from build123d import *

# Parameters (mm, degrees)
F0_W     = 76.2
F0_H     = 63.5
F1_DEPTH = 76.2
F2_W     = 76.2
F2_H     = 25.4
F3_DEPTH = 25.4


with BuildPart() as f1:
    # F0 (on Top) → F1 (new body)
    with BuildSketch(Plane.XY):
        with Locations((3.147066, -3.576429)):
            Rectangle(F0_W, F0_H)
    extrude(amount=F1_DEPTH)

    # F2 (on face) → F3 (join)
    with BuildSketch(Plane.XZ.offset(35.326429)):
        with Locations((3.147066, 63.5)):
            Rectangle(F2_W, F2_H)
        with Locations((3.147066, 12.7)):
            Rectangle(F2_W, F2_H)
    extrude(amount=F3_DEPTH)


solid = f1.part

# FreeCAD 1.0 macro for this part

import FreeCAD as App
import Part
import Sketcher
from FreeCAD import Vector
Q = App.Units.Quantity

doc = App.newDocument("Part")
body = doc.addObject("PartDesign::Body", "Body")

sketch1 = body.newObject("Sketcher::SketchObject", "Sketch")
sketch1.AttachmentSupport = (doc.getObject("XY_Plane"), [""])
sketch1.MapMode = "FlatFace"
sketch1.addGeometry(Part.LineSegment(Vector(-35, 28, 0), Vector(-35, -35, 0)), False)
sketch1.addGeometry(Part.LineSegment(Vector(-35, -35, 0), Vector(41, -35, 0)), False)
sketch1.addGeometry(Part.LineSegment(Vector(41, -35, 0), Vector(41, 28, 0)), False)
sketch1.addGeometry(Part.LineSegment(Vector(41, 28, 0), Vector(-35, 28, 0)), False)
sketch1.addConstraint(Sketcher.Constraint("Coincident", 0, 2, 1, 1))
sketch1.addConstraint(Sketcher.Constraint("Coincident", 1, 2, 2, 1))
sketch1.addConstraint(Sketcher.Constraint("Coincident", 2, 2, 3, 1))
sketch1.addConstraint(Sketcher.Constraint("Coincident", 3, 2, 0, 1))
sketch1.addConstraint(Sketcher.Constraint("Vertical", 0))
sketch1.addConstraint(Sketcher.Constraint("Horizontal", 1))
sketch1.addConstraint(Sketcher.Constraint("Vertical", 2))
sketch1.addConstraint(Sketcher.Constraint("Horizontal", 3))
sketch1.addConstraint(Sketcher.Constraint("DistanceX", 1, 1, 1, 2, Q("3 in")))
sketch1.addConstraint(Sketcher.Constraint("DistanceY", 0, 2, 0, 1, Q("2.5 in")))
sketch1.addConstraint(Sketcher.Constraint("DistanceY", 0, 2, -1, 1, Q("35.326429 mm")))
sketch1.addConstraint(Sketcher.Constraint("DistanceX", 0, 2, -1, 1, Q("34.952934 mm")))
pad1 = body.newObject("PartDesign::Pad", "Pad")
pad1.Profile = sketch1
pad1.Length = Q("3 in")

sketch2 = body.newObject("Sketcher::SketchObject", "Sketch001")
sketch2.AttachmentSupport = (doc.getObject("XZ_Plane"), [""])
sketch2.MapMode = "FlatFace"
sketch2.AttachmentOffset = App.Placement(Vector(0, 0, 35.326429), App.Rotation())
sketch2.addGeometry(Part.LineSegment(Vector(-35, 76, 0), Vector(-35, 51, 0)), False)
sketch2.addGeometry(Part.LineSegment(Vector(-35, 51, 0), Vector(41, 51, 0)), False)
sketch2.addGeometry(Part.LineSegment(Vector(41, 51, 0), Vector(41, 76, 0)), False)
sketch2.addGeometry(Part.LineSegment(Vector(41, 76, 0), Vector(-35, 76, 0)), False)
sketch2.addGeometry(Part.LineSegment(Vector(-35, 25, 0), Vector(-35, 0, 0)), False)
sketch2.addGeometry(Part.LineSegment(Vector(-35, 0, 0), Vector(41, 0, 0)), False)
sketch2.addGeometry(Part.LineSegment(Vector(41, 0, 0), Vector(41, 25, 0)), False)
sketch2.addGeometry(Part.LineSegment(Vector(41, 25, 0), Vector(-35, 25, 0)), False)
sketch2.addConstraint(Sketcher.Constraint("Coincident", 0, 2, 1, 1))
sketch2.addConstraint(Sketcher.Constraint("Coincident", 1, 2, 2, 1))
sketch2.addConstraint(Sketcher.Constraint("Coincident", 2, 2, 3, 1))
sketch2.addConstraint(Sketcher.Constraint("Coincident", 3, 2, 0, 1))
sketch2.addConstraint(Sketcher.Constraint("Coincident", 4, 2, 5, 1))
sketch2.addConstraint(Sketcher.Constraint("Coincident", 5, 2, 6, 1))
sketch2.addConstraint(Sketcher.Constraint("Coincident", 6, 2, 7, 1))
sketch2.addConstraint(Sketcher.Constraint("Coincident", 7, 2, 4, 1))
sketch2.addConstraint(Sketcher.Constraint("Vertical", 0))
sketch2.addConstraint(Sketcher.Constraint("Horizontal", 1))
sketch2.addConstraint(Sketcher.Constraint("Vertical", 2))
sketch2.addConstraint(Sketcher.Constraint("Horizontal", 3))
sketch2.addConstraint(Sketcher.Constraint("Vertical", 4))
sketch2.addConstraint(Sketcher.Constraint("Horizontal", 5))
sketch2.addConstraint(Sketcher.Constraint("Vertical", 6))
sketch2.addConstraint(Sketcher.Constraint("Horizontal", 7))
sketch2.addConstraint(Sketcher.Constraint("PointOnObject", 4, 2, -1))
sketch2.addConstraint(Sketcher.Constraint("Vertical", 3, 2, 4, 2))
sketch2.addConstraint(Sketcher.Constraint("Vertical", 2, 2, 5, 2))
sketch2.addConstraint(Sketcher.Constraint("Equal", 2, 4))
sketch2.addConstraint(Sketcher.Constraint("DistanceX", 1, 1, 1, 2, Q("3 in")))
sketch2.addConstraint(Sketcher.Constraint("DistanceY", 0, 2, 0, 1, Q("1 in")))
sketch2.addConstraint(Sketcher.Constraint("DistanceY", -1, 1, 0, 2, Q("2 in")))
sketch2.addConstraint(Sketcher.Constraint("DistanceX", 0, 2, -1, 1, Q("34.952934 mm")))
pad2 = body.newObject("PartDesign::Pad", "Pad001")
pad2.Profile = sketch2
pad2.Length = Q("1 in")

doc.recompute()
